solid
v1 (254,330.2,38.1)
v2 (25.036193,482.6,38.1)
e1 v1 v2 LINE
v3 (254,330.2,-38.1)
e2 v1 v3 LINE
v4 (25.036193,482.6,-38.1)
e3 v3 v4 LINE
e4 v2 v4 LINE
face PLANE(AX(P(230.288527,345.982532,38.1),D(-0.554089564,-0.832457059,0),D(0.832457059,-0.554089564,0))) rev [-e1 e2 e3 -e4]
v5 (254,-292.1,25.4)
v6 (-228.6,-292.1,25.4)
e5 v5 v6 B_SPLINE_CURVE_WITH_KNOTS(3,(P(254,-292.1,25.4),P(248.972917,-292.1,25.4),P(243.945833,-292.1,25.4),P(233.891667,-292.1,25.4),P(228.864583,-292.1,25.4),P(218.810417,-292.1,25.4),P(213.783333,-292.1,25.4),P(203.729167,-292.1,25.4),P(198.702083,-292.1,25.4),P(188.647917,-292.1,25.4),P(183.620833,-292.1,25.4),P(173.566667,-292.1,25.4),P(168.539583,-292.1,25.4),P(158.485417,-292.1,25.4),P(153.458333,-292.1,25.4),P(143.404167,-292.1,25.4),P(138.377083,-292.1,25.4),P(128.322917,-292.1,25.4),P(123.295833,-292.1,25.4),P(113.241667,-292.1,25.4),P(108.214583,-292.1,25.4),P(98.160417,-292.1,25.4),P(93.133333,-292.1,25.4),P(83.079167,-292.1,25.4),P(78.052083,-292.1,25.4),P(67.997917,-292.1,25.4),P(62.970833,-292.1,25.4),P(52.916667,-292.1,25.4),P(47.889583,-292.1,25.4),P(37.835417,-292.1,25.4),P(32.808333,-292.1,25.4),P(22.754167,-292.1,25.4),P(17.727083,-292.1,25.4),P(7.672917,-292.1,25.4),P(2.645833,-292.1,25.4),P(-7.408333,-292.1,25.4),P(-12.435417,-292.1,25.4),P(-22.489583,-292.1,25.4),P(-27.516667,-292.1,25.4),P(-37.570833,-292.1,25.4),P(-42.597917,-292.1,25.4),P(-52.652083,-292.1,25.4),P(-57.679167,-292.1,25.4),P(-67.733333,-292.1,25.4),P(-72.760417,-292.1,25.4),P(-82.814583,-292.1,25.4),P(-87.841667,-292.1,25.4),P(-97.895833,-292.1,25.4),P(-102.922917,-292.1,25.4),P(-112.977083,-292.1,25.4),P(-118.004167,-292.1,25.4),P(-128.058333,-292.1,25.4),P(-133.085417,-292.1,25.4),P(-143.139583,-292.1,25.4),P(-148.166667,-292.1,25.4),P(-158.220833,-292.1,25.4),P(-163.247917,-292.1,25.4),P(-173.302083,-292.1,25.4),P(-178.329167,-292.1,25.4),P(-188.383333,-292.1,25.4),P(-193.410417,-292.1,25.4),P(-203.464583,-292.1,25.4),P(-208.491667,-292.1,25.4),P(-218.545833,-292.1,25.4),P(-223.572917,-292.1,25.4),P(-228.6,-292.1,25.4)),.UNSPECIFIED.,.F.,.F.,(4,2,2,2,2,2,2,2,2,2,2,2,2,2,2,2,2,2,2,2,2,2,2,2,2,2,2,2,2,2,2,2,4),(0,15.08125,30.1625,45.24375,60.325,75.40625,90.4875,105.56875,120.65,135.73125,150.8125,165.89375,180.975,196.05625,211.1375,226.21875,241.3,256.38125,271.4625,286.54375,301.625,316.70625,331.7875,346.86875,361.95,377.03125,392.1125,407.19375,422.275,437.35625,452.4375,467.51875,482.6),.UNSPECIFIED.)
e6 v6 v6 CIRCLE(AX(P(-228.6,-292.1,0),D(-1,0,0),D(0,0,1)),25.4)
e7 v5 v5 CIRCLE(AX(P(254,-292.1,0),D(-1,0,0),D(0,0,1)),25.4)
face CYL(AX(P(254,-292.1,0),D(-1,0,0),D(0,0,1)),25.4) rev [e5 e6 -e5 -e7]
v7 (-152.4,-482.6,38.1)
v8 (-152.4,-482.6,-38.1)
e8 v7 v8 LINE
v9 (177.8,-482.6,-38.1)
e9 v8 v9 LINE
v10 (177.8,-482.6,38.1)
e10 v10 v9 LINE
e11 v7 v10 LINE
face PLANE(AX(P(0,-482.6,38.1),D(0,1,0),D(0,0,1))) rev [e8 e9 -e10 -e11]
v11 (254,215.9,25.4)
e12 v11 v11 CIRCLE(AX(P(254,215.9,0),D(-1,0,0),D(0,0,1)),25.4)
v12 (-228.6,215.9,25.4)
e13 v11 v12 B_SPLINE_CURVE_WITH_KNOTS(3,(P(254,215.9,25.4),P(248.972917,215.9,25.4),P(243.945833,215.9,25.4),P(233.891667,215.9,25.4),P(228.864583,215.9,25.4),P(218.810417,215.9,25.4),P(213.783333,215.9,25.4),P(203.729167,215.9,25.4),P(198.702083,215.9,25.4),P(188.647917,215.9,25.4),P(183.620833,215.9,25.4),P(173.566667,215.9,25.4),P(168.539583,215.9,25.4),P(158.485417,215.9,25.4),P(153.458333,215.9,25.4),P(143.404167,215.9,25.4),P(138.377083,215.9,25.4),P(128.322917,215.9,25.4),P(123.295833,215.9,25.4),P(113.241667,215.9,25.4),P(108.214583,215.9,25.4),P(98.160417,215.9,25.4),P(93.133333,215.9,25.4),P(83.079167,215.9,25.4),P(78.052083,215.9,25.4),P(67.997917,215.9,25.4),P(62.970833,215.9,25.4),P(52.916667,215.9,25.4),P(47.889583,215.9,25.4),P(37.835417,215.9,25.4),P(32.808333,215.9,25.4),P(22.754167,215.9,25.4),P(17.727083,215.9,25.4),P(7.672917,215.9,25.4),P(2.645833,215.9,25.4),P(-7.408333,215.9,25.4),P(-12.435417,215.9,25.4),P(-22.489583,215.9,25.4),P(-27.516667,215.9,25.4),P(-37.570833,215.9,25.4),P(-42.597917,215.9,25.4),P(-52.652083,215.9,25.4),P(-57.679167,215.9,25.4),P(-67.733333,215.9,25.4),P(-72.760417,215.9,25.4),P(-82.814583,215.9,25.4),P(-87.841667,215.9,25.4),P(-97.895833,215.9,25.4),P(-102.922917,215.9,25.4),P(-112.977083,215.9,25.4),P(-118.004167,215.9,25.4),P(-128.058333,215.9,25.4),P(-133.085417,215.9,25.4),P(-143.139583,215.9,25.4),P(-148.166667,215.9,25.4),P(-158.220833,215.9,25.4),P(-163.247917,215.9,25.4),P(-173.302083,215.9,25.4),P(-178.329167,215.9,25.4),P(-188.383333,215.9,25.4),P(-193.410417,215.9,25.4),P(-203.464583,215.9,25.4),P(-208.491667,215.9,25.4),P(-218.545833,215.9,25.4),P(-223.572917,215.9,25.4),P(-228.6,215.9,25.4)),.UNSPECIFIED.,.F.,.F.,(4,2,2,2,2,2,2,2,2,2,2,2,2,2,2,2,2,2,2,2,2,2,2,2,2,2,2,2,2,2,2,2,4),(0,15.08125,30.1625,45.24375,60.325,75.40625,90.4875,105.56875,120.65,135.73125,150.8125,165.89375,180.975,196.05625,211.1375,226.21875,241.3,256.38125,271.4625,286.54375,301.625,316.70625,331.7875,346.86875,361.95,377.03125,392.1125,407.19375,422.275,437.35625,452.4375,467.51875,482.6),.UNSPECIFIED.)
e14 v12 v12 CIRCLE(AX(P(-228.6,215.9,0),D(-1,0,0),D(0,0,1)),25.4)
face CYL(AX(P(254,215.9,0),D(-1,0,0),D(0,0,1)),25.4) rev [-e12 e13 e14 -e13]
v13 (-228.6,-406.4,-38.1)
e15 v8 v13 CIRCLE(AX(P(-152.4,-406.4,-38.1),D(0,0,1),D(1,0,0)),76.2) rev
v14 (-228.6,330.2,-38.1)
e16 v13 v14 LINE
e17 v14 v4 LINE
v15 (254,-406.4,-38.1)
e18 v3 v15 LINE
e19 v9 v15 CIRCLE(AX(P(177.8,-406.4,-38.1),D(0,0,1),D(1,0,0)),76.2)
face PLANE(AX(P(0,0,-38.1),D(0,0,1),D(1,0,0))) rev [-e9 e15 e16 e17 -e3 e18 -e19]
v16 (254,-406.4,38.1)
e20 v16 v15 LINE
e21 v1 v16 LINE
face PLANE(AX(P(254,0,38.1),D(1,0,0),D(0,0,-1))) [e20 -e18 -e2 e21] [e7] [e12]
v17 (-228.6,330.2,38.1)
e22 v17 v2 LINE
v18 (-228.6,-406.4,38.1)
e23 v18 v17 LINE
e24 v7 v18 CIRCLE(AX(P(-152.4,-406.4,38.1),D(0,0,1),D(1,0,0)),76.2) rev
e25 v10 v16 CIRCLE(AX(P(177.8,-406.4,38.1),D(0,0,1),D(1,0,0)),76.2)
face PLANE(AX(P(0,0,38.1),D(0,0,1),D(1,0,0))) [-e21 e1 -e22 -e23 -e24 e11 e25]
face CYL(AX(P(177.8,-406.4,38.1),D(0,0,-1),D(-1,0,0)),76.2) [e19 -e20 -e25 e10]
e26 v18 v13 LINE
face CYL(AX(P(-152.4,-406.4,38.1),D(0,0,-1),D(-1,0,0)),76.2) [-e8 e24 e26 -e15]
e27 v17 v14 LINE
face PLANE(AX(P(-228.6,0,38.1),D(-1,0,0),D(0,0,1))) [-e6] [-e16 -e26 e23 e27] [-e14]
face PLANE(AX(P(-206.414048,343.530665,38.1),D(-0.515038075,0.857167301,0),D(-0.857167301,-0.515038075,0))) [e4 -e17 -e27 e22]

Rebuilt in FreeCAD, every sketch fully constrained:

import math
import FreeCAD as App
import Part
import Sketcher

V = App.Vector
Q = App.Units.Quantity

doc = App.newDocument("Part")
body = doc.addObject("PartDesign::Body", "Body")

# Sketch on XY plane
sketch1 = body.newObject("Sketcher::SketchObject", "Sketch")
sketch1.AttachmentSupport = (doc.getObject("XY_Plane"), [""])
sketch1.MapMode = "FlatFace"
sketch1.addGeometry([
    Part.LineSegment(V(-229, 330, 0), V(-229, -406, 0)),  # 0
    Part.ArcOfCircle(Part.Circle(V(-152, -406, 0), V(0, 0, 1), 76), math.radians(-180), math.radians(-90)),  # 1
    Part.LineSegment(V(-152, -483, 0), V(178, -483, 0)),  # 2
    Part.ArcOfCircle(Part.Circle(V(178, -406, 0), V(0, 0, 1), 76), math.radians(-90), math.radians(0)),  # 3
    Part.LineSegment(V(254, -406, 0), V(254, 330, 0)),  # 4
    Part.LineSegment(V(254, 330, 0), V(25, 483, 0)),  # 5
    Part.LineSegment(V(25, 483, 0), V(-229, 330, 0)),  # 6
], False)
sketch1.addConstraint([
    Sketcher.Constraint("Tangent", 0, 2, 1, 1),
    Sketcher.Constraint("Tangent", 1, 2, 2, 1),
    Sketcher.Constraint("Tangent", 2, 2, 3, 1),
    Sketcher.Constraint("Tangent", 3, 2, 4, 1),
    Sketcher.Constraint("Coincident", 4, 2, 5, 1),
    Sketcher.Constraint("Coincident", 5, 2, 6, 1),
    Sketcher.Constraint("Coincident", 6, 2, 0, 1),
    Sketcher.Constraint("Vertical", 0),
    Sketcher.Constraint("Horizontal", 2),
    Sketcher.Constraint("Vertical", 4),
    Sketcher.Constraint("Equal", 1, 3),
    Sketcher.Constraint("Horizontal", 4, 2, 6, 2),
    Sketcher.Constraint("Radius", 1, Q("3 in")),
    Sketcher.Constraint("DistanceX", 2, 1, 2, 2, Q("13 in")),
    Sketcher.Constraint("DistanceY", 0, 2, 0, 1, Q("29 in")),
    Sketcher.Constraint("DistanceX", 1, 3, -1, 1, Q("6 in")),
    Sketcher.Constraint("DistanceY", 1, 3, -1, 1, Q("16 in")),
    Sketcher.Constraint("DistanceY", -1, 1, 5, 2, Q("19 in")),
    Sketcher.Constraint("Angle", 6, Q("-149 deg")),
])
pad1 = body.newObject("PartDesign::Pad", "Pad")
pad1.Profile = sketch1
pad1.Length = Q("3 in")
pad1.Midplane = True

# Sketch on YZ plane
sketch2 = body.newObject("Sketcher::SketchObject", "Sketch001")
sketch2.AttachmentSupport = (doc.getObject("YZ_Plane"), [""])
sketch2.MapMode = "FlatFace"
sketch2.AttachmentOffset = App.Placement(V(0, 0, -9 * 25.4), App.Rotation())
sketch2.addGeometry([
    Part.Circle(V(216, 0, 0), V(0, 0, 1), 25),
    Part.Circle(V(-292, 0, 0), V(0, 0, 1), 25),
], False)
sketch2.addConstraint([
    Sketcher.Constraint("Equal", 0, 1),
    Sketcher.Constraint("PointOnObject", 0, 3, -1),
    Sketcher.Constraint("PointOnObject", 1, 3, -1),
    Sketcher.Constraint("Diameter", 0, Q("2 in")),
    Sketcher.Constraint("DistanceX", 1, 3, 0, 3, Q("20 in")),
    Sketcher.Constraint("DistanceX", -1, 1, 0, 3, Q("8.5 in")),
])
pocket1 = body.newObject("PartDesign::Pocket", "Pocket")
pocket1.Profile = sketch2
pocket1.Type = "ThroughAll"
pocket1.Reversed = True

doc.recompute()
